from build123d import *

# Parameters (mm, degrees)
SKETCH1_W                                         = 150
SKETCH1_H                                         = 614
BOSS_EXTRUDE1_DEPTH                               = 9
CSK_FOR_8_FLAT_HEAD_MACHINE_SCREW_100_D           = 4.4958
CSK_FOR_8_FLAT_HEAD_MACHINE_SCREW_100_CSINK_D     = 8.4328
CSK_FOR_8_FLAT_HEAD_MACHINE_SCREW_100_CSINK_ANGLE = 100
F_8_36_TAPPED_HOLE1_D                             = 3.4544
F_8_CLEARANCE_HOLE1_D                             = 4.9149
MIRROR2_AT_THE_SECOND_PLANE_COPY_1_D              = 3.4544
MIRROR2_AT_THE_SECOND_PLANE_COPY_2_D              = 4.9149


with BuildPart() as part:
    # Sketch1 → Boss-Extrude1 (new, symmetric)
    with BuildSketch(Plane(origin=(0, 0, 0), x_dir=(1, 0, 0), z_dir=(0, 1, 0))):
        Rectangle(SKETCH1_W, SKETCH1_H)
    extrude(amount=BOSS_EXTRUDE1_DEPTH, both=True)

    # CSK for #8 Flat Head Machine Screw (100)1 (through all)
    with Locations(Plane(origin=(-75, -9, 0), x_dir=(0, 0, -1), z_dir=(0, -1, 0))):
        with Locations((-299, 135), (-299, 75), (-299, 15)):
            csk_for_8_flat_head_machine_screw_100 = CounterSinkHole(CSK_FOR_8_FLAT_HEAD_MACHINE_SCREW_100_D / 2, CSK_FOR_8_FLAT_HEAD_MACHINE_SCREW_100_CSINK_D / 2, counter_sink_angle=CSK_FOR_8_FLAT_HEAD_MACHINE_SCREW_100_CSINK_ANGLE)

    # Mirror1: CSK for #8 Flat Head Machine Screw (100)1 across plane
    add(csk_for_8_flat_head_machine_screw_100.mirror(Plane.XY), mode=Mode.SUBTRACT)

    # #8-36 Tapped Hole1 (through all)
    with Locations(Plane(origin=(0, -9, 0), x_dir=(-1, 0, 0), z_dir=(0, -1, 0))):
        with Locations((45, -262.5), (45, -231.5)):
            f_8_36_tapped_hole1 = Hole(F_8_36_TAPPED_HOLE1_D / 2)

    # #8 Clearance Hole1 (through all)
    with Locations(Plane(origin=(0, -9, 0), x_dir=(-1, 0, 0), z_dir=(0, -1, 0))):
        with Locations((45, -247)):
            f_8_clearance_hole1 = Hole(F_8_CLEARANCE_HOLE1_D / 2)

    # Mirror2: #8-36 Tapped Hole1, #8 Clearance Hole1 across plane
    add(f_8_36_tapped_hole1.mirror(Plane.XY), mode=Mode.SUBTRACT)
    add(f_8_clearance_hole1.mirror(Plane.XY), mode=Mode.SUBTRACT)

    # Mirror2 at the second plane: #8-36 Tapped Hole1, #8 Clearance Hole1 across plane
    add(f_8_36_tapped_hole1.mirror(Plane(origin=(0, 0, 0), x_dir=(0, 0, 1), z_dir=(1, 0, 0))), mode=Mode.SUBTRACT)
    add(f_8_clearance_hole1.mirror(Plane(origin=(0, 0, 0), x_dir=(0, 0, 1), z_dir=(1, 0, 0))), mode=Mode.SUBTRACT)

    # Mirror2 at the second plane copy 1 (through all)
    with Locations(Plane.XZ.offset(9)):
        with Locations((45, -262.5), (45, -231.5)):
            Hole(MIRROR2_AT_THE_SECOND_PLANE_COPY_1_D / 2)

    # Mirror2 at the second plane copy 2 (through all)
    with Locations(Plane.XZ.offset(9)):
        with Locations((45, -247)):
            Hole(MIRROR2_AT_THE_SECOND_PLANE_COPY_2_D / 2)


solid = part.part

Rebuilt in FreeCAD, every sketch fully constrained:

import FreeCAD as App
import Part
import Sketcher
from FreeCAD import Vector
Q = App.Units.Quantity

doc = App.newDocument("Part")
body = doc.addObject("PartDesign::Body", "Body")

sketch1 = doc.addObject("Sketcher::SketchObject", "Sketch")
body.addObject(sketch1)
sketch1.AttachmentSupport = (doc.XZ_Plane, [""])
sketch1.MapMode = "FlatFace"
sketch1.addGeometry([
    Part.LineSegment(Vector(-75, -307, 0), Vector(-75, 307, 0)),
    Part.LineSegment(Vector(-75, 307, 0), Vector(75, 307, 0)),
    Part.LineSegment(Vector(75, 307, 0), Vector(75, -307, 0)),
    Part.LineSegment(Vector(75, -307, 0), Vector(-75, -307, 0)),
], False)
sketch1.addConstraint([
    Sketcher.Constraint("Coincident", 0, 2, 1, 1),
    Sketcher.Constraint("Coincident", 1, 2, 2, 1),
    Sketcher.Constraint("Coincident", 2, 2, 3, 1),
    Sketcher.Constraint("Coincident", 3, 2, 0, 1),
    Sketcher.Constraint("Vertical", 0),
    Sketcher.Constraint("Horizontal", 1),
    Sketcher.Constraint("Vertical", 2),
    Sketcher.Constraint("Horizontal", 3),
    Sketcher.Constraint("Symmetric", 0, 2, 2, 2, -1, 1),
    Sketcher.Constraint("DistanceX", 1, 1, 1, 2, Q("150 mm")),
    Sketcher.Constraint("DistanceY", 0, 1, 0, 2, Q("614 mm")),
])
pad1 = doc.addObject("PartDesign::Pad", "Pad")
body.addObject(pad1)
pad1.Profile = sketch1
pad1.Length = 18
pad1.Midplane = True

sketch2 = doc.addObject("Sketcher::SketchObject", "Sketch001")
body.addObject(sketch2)
sketch2.AttachmentSupport = (doc.XZ_Plane, [""])
sketch2.MapMode = "FlatFace"
sketch2.AttachmentOffset = App.Placement(Vector(0, 0, 9), App.Rotation())
sketch2.addGeometry([
    Part.Circle(Vector(60, 299, 0), Vector(0, 0, 1), 2.2),
    Part.Circle(Vector(0, 299, 0), Vector(0, 0, 1), 2.2),
    Part.Circle(Vector(-60, 299, 0), Vector(0, 0, 1), 2.2),
], False)
sketch2.addConstraint([
    Sketcher.Constraint("Equal", 0, 1),
    Sketcher.Constraint("Equal", 1, 2),
    Sketcher.Constraint("Symmetric", 0, 3, 2, 3, -2),
    Sketcher.Constraint("PointOnObject", 1, 3, -2),
    Sketcher.Constraint("Horizontal", 0, 3, 1, 3),
    Sketcher.Constraint("DistanceX", -1, 1, 0, 3, Q("60 mm")),
    Sketcher.Constraint("DistanceY", -1, 1, 0, 3, Q("299 mm")),
    Sketcher.Constraint("Diameter", 0, Q("4.4958 mm")),
])
doc.recompute()
hole = doc.addObject("PartDesign::Hole", "Hole")
body.addObject(hole)
hole.Profile = sketch2
hole.ThreadType = "None"
hole.Diameter = 4.4958
hole.DepthType = "ThroughAll"
hole.HoleCutType = "Countersink"
hole.HoleCutDiameter = 8.4328
hole.HoleCutCountersinkAngle = 100
doc.recompute()

mirrored = doc.addObject("PartDesign::Mirrored", "Mirrored")
body.addObject(mirrored)
mirrored.Originals = [hole]
mirrored.MirrorPlane = (doc.XY_Plane, [""])
body.Tip = mirrored

sketch3 = doc.addObject("Sketcher::SketchObject", "Sketch002")
body.addObject(sketch3)
sketch3.AttachmentSupport = (doc.XZ_Plane, [""])
sketch3.MapMode = "FlatFace"
sketch3.AttachmentOffset = App.Placement(Vector(0, 0, 9), App.Rotation())
sketch3.addGeometry([
    Part.Circle(Vector(-45, 262.5, 0), Vector(0, 0, 1), 1.7),
    Part.Circle(Vector(-45, 231.5, 0), Vector(0, 0, 1), 1.7),
], False)
sketch3.addConstraint([
    Sketcher.Constraint("Equal", 0, 1),
    Sketcher.Constraint("Vertical", 0, 3, 1, 3),
    Sketcher.Constraint("DistanceX", 0, 3, -1, 1, Q("45 mm")),
    Sketcher.Constraint("DistanceY", 1, 3, 0, 3, Q("31 mm")),
    Sketcher.Constraint("Diameter", 0, Q("3.4544 mm")),
    Sketcher.Constraint("DistanceY", -1, 1, 0, 3, Q("262.5 mm")),
])
doc.recompute()
hole2 = doc.addObject("PartDesign::Hole", "Hole001")
body.addObject(hole2)
hole2.Profile = sketch3
hole2.ThreadType = "None"
hole2.Diameter = 3.4544
hole2.DepthType = "ThroughAll"

sketch4 = doc.addObject("Sketcher::SketchObject", "Sketch003")
body.addObject(sketch4)
sketch4.AttachmentSupport = (doc.XZ_Plane, [""])
sketch4.MapMode = "FlatFace"
sketch4.AttachmentOffset = App.Placement(Vector(0, 0, 9), App.Rotation())
sketch4.addGeometry(Part.Circle(Vector(-45, 247, 0), Vector(0, 0, 1), 2.5), False)
sketch4.addConstraint([
    Sketcher.Constraint("DistanceX", 0, 3, -1, 1, Q("45 mm")),
    Sketcher.Constraint("DistanceY", -1, 1, 0, 3, Q("247 mm")),
    Sketcher.Constraint("Diameter", 0, Q("4.9149 mm")),
])
doc.recompute()
hole3 = doc.addObject("PartDesign::Hole", "Hole002")
body.addObject(hole3)
hole3.Profile = sketch4
hole3.ThreadType = "None"
hole3.Diameter = 4.9149
hole3.DepthType = "ThroughAll"
doc.recompute()

mirrored2 = doc.addObject("PartDesign::Mirrored", "Mirrored001")
body.addObject(mirrored2)
mirrored2.Originals = [hole2, hole3]
mirrored2.MirrorPlane = (doc.XY_Plane, [""])
body.Tip = mirrored2
doc.recompute()

mirrored3 = doc.addObject("PartDesign::Mirrored", "Mirrored002")
body.addObject(mirrored3)
mirrored3.Originals = [hole2, hole3]
mirrored3.MirrorPlane = (doc.YZ_Plane, [""])
body.Tip = mirrored3

sketch5 = doc.addObject("Sketcher::SketchObject", "Sketch004")
body.addObject(sketch5)
sketch5.AttachmentSupport = (doc.XZ_Plane, [""])
sketch5.MapMode = "FlatFace"
sketch5.AttachmentOffset = App.Placement(Vector(0, 0, 9), App.Rotation())
sketch5.addGeometry([
    Part.Circle(Vector(45, -262.5, 0), Vector(0, 0, 1), 1.7),
    Part.Circle(Vector(45, -231.5, 0), Vector(0, 0, 1), 1.7),
], False)
sketch5.addConstraint([
    Sketcher.Constraint("Equal", 0, 1),
    Sketcher.Constraint("Vertical", 0, 3, 1, 3),
    Sketcher.Constraint("DistanceX", -1, 1, 0, 3, Q("45 mm")),
    Sketcher.Constraint("DistanceY", 0, 3, 1, 3, Q("31 mm")),
    Sketcher.Constraint("Diameter", 0, Q("3.4544 mm")),
    Sketcher.Constraint("DistanceY", 0, 3, -1, 1, Q("262.5 mm")),
])
doc.recompute()
hole4 = doc.addObject("PartDesign::Hole", "Hole003")
body.addObject(hole4)
hole4.Profile = sketch5
hole4.ThreadType = "None"
hole4.Diameter = 3.4544
hole4.DepthType = "ThroughAll"

sketch6 = doc.addObject("Sketcher::SketchObject", "Sketch005")
body.addObject(sketch6)
sketch6.AttachmentSupport = (doc.XZ_Plane, [""])
sketch6.MapMode = "FlatFace"
sketch6.AttachmentOffset = App.Placement(Vector(0, 0, 9), App.Rotation())
sketch6.addGeometry(Part.Circle(Vector(45, -247, 0), Vector(0, 0, 1), 2.5), False)
sketch6.addConstraint([
    Sketcher.Constraint("DistanceX", -1, 1, 0, 3, Q("45 mm")),
    Sketcher.Constraint("DistanceY", 0, 3, -1, 1, Q("247 mm")),
    Sketcher.Constraint("Diameter", 0, Q("4.9149 mm")),
])
doc.recompute()
hole5 = doc.addObject("PartDesign::Hole", "Hole004")
body.addObject(hole5)
hole5.Profile = sketch6
hole5.ThreadType = "None"
hole5.Diameter = 4.9149
hole5.DepthType = "ThroughAll"

doc.recompute()
